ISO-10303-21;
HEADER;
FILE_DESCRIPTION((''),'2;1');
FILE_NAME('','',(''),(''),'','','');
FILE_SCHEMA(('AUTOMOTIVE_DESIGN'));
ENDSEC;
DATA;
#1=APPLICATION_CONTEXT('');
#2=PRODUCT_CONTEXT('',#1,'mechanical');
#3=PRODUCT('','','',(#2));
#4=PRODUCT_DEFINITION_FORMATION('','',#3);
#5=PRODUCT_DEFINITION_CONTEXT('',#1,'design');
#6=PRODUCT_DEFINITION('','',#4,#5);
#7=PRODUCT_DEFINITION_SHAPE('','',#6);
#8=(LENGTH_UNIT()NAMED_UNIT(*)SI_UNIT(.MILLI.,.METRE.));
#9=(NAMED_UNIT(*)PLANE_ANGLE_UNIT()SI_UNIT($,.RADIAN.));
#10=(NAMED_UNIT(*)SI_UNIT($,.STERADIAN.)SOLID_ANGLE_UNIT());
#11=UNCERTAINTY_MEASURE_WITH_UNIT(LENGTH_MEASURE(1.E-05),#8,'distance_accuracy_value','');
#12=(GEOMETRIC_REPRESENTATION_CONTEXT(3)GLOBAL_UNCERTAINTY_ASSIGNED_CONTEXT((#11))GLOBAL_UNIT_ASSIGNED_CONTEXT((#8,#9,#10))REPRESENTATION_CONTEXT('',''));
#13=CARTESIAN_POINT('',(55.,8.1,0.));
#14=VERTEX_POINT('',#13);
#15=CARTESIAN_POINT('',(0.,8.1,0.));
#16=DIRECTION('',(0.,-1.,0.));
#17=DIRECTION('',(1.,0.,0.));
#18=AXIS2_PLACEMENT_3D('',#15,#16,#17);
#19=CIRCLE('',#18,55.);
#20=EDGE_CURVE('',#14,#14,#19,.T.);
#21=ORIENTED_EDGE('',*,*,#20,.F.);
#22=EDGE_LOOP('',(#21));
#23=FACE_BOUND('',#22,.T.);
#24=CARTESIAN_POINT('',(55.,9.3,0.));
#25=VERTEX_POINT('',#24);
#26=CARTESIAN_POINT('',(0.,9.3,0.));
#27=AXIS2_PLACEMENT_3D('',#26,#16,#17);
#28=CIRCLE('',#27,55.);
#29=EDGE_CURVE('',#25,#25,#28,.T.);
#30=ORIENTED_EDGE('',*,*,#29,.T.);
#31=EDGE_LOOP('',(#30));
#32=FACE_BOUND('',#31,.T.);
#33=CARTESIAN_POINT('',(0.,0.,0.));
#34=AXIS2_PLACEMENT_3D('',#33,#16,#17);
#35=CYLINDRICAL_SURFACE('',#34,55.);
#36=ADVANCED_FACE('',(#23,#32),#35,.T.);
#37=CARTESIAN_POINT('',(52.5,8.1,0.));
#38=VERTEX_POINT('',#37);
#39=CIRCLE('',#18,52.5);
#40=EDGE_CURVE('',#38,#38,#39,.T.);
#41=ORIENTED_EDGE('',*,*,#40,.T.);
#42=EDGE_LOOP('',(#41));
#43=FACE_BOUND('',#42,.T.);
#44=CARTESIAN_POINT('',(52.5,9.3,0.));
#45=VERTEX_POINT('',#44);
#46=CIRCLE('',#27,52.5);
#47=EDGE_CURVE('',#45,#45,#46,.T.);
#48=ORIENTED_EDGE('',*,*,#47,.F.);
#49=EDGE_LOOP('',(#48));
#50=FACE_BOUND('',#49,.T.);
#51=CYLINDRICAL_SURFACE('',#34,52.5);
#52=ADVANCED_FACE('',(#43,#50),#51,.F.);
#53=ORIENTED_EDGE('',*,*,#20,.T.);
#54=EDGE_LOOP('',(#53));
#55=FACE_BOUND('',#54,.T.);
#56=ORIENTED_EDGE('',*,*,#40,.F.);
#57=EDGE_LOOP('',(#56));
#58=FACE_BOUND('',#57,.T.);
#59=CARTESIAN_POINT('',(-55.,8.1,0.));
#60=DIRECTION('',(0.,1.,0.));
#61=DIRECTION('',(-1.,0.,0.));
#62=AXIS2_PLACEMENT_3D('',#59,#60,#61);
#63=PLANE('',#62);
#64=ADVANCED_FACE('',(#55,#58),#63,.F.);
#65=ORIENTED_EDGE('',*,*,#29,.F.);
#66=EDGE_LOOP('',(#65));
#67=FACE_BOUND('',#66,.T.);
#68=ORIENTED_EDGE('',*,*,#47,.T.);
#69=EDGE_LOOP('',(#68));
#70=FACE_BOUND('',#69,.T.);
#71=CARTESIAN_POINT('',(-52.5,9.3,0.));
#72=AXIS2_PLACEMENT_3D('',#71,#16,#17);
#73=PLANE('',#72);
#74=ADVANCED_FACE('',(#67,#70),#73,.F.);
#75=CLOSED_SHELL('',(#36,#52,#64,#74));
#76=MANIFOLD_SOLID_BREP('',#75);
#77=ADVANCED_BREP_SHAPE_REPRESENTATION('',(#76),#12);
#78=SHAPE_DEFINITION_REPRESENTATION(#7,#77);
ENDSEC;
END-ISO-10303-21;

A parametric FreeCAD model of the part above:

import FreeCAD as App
import Part
import Sketcher
from FreeCAD import Vector


def add_polygon(sketch, points):
    """Adds a closed chain of lines whose ends are joined by coincident constraints."""
    first, n = sketch.GeometryCount, len(points)
    for a, b in zip(points, points[1:] + points[:1]):
        sketch.addGeometry(Part.LineSegment(App.Vector(*a, 0), App.Vector(*b, 0)), False)
    for i in range(n):
        sketch.addConstraint(Sketcher.Constraint("Coincident", first + i, 2, first + (i + 1) % n, 1))

doc = App.newDocument("Part")
params = doc.addObject("Spreadsheet::Sheet", "Params")
for row, (alias, value) in enumerate([
    ("sketch1_width", "2.5 mm"),
    ("sketch1_height", "1.2 mm"),
    ("revolution_angle", "360 deg"),
], start=1):
    params.set(f"A{row}", alias)
    params.set(f"B{row}", "=" + value)
    params.setAlias(f"B{row}", alias)

body = doc.addObject("PartDesign::Body", "Body")

# Sketch on XY plane
sketch1 = body.newObject("Sketcher::SketchObject", "Sketch")
sketch1.AttachmentSupport = (doc.getObject("XY_Plane"), [""])
sketch1.MapMode = "FlatFace"
add_polygon(sketch1, [(-55, 9.3), (-55, 8.1), (-52.5, 8.1), (-52.5, 9.3)])  # lines 0-3
sketch1.addConstraint(Sketcher.Constraint("Vertical", 0))
sketch1.addConstraint(Sketcher.Constraint("Horizontal", 1))
sketch1.addConstraint(Sketcher.Constraint("Vertical", 2))
sketch1.addConstraint(Sketcher.Constraint("Horizontal", 3))
sketch1.addConstraint(Sketcher.Constraint("DistanceX", 1, 1, 1, 2, 2.5))
sketch1.addConstraint(Sketcher.Constraint("DistanceY", 0, 2, 0, 1, 1.2))
sketch1.addConstraint(Sketcher.Constraint("DistanceX", 0, 2, -1, 1, 55.0))
sketch1.addConstraint(Sketcher.Constraint("DistanceY", -1, 1, 0, 2, 8.1))
sketch1.setExpression("Constraints[8]", "Params.sketch1_width")
sketch1.setExpression("Constraints[9]", "Params.sketch1_height")
revolution = body.newObject("PartDesign::Revolution", "Revolution")
revolution.Profile = sketch1
revolution.ReferenceAxis = (sketch1, ["V_Axis"])
revolution.setExpression("Angle", "Params.revolution_angle")

doc.recompute()
